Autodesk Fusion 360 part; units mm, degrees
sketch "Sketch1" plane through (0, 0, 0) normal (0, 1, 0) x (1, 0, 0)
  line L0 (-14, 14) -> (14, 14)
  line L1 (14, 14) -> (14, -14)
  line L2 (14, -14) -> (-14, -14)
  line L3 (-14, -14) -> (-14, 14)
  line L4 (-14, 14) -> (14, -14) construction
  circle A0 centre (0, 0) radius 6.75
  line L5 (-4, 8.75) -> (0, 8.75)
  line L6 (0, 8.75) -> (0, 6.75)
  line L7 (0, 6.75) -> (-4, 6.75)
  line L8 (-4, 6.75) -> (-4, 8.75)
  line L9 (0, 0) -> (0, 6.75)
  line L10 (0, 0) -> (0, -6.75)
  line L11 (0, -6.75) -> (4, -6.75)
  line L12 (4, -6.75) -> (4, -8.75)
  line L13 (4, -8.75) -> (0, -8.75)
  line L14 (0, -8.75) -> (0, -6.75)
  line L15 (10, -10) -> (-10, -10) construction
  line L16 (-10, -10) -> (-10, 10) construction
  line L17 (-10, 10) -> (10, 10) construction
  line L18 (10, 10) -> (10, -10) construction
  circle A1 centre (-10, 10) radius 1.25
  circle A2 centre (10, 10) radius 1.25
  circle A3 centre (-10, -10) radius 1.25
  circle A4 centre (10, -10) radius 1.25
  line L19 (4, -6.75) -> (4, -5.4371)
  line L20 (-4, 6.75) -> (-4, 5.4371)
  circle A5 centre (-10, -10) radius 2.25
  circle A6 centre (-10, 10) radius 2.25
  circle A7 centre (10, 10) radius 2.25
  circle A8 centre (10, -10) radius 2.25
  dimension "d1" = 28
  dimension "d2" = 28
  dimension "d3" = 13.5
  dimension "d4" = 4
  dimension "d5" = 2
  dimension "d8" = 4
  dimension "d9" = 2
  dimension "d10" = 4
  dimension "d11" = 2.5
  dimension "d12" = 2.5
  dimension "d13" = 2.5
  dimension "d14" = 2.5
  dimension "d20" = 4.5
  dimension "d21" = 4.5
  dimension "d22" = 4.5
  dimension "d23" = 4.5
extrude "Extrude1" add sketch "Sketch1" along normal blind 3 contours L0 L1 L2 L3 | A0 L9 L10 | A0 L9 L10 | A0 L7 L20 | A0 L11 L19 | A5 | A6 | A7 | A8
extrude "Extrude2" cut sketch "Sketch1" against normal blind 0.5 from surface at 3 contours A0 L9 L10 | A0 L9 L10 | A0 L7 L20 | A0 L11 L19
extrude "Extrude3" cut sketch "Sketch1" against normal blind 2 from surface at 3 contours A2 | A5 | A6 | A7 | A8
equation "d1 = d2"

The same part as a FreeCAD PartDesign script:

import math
import FreeCAD as App
import Part
import Sketcher
from FreeCAD import Vector
Q = App.Units.Quantity


def add_polygon(sketch, points):
    """Adds a closed chain of lines whose ends are joined by coincident constraints."""
    first, n = sketch.GeometryCount, len(points)
    for a, b in zip(points, points[1:] + points[:1]):
        sketch.addGeometry(Part.LineSegment(App.Vector(*a, 0), App.Vector(*b, 0)), False)
    for i in range(n):
        sketch.addConstraint(Sketcher.Constraint("Coincident", first + i, 2, first + (i + 1) % n, 1))

doc = App.newDocument("Part")
params = doc.addObject("Spreadsheet::Sheet", "Params")
for row, (alias, value) in enumerate([
    ("sketch1_diameter", "2.5 mm"),
    ("sketch1_width", "28 mm"),
    ("sketch1_width2", "4 mm"),
    ("sketch1_height", "2 mm"),
    ("pad1_length", "3 mm"),
    ("sketch2_width", "4 mm"),
    ("sketch2_radius", "6.75 mm"),
    ("pocket1_length", "0.5 mm"),
    ("sketch3_diameter", "4.5 mm"),
    ("sketch3_diameter2", "2.5 mm"),
    ("pocket2_length", "2 mm"),
], start=1):
    params.set(f"A{row}", alias)
    params.set(f"B{row}", "=" + value)
    params.setAlias(f"B{row}", alias)

body = doc.addObject("PartDesign::Body", "Body")

# Sketch on XZ plane
sketch1 = body.newObject("Sketcher::SketchObject", "Sketch")
sketch1.AttachmentSupport = (doc.getObject("XZ_Plane"), [""])
sketch1.MapMode = "FlatFace"
add_polygon(sketch1, [(14, -14), (-14, -14), (-14, 14), (14, 14)])  # lines 0-3
add_polygon(sketch1, [(0, -8.75), (0, -6.75), (-4, -6.75), (-4, -8.75)])  # lines 4-7
add_polygon(sketch1, [(0, 8.75), (0, 6.75), (4, 6.75), (4, 8.75)])  # lines 8-11
sketch1.addGeometry(Part.Circle(Vector(-10, 10, 0), Vector(0, 0, 1), 1.25), False)  # 12
sketch1.addGeometry(Part.Circle(Vector(10, 10, 0), Vector(0, 0, 1), 1.25), False)  # 13
sketch1.addGeometry(Part.Circle(Vector(-10, -10, 0), Vector(0, 0, 1), 1.25), False)  # 14
sketch1.addGeometry(Part.Circle(Vector(10, -10, 0), Vector(0, 0, 1), 1.25), False)  # 15
sketch1.addConstraint(Sketcher.Constraint("Horizontal", 0))
sketch1.addConstraint(Sketcher.Constraint("Vertical", 1))
sketch1.addConstraint(Sketcher.Constraint("Horizontal", 2))
sketch1.addConstraint(Sketcher.Constraint("Vertical", 3))
sketch1.addConstraint(Sketcher.Constraint("Vertical", 4))
sketch1.addConstraint(Sketcher.Constraint("Horizontal", 5))
sketch1.addConstraint(Sketcher.Constraint("Vertical", 6))
sketch1.addConstraint(Sketcher.Constraint("Horizontal", 7))
sketch1.addConstraint(Sketcher.Constraint("Vertical", 8))
sketch1.addConstraint(Sketcher.Constraint("Horizontal", 9))
sketch1.addConstraint(Sketcher.Constraint("Vertical", 10))
sketch1.addConstraint(Sketcher.Constraint("Horizontal", 11))
sketch1.addConstraint(Sketcher.Constraint("Equal", 12, 13))
sketch1.addConstraint(Sketcher.Constraint("Equal", 13, 14))
sketch1.addConstraint(Sketcher.Constraint("Equal", 14, 15))
sketch1.addConstraint(Sketcher.Constraint("Symmetric", 13, 3, 14, 3, -1, 1))
sketch1.addConstraint(Sketcher.Constraint("Symmetric", 12, 3, 15, 3, -1, 1))
sketch1.addConstraint(Sketcher.Constraint("Symmetric", 0, 2, 2, 2, -1, 1))
sketch1.addConstraint(Sketcher.Constraint("Symmetric", 4, 2, 8, 2, -1, 1))
sketch1.addConstraint(Sketcher.Constraint("Symmetric", 6, 2, 10, 2, -1, 1))
sketch1.addConstraint(Sketcher.Constraint("Symmetric", 12, 3, 13, 3, -2))
sketch1.addConstraint(Sketcher.Constraint("PointOnObject", 4, 2, -2))
sketch1.addConstraint(Sketcher.Constraint("Equal", 2, 1))
sketch1.addConstraint(Sketcher.Constraint("Diameter", 12, Q("2.5 mm")))
sketch1.addConstraint(Sketcher.Constraint("DistanceX", 0, 2, 0, 1, Q("28 mm")))
sketch1.addConstraint(Sketcher.Constraint("DistanceX", 5, 2, 5, 1, Q("4 mm")))
sketch1.addConstraint(Sketcher.Constraint("DistanceY", 4, 1, 4, 2, Q("2 mm")))
sketch1.addConstraint(Sketcher.Constraint("DistanceX", 0, 2, 14, 3, Q("4 mm")))
sketch1.addConstraint(Sketcher.Constraint("DistanceY", 0, 2, 14, 3, Q("4 mm")))
sketch1.addConstraint(Sketcher.Constraint("DistanceY", 4, 2, 8, 2, Q("13.5 mm")))
sketch1.setExpression("Constraints[35]", "Params.sketch1_diameter")
sketch1.setExpression("Constraints[36]", "Params.sketch1_width")
sketch1.setExpression("Constraints[37]", "Params.sketch1_width2")
sketch1.setExpression("Constraints[38]", "Params.sketch1_height")
pad1 = body.newObject("PartDesign::Pad", "Pad")
pad1.Profile = sketch1
pad1.setExpression("Length", "Params.pad1_length")
pad1.Reversed = True

# Sketch on XZ plane
sketch2 = body.newObject("Sketcher::SketchObject", "Sketch001")
sketch2.AttachmentSupport = (doc.getObject("XZ_Plane"), [""])
sketch2.MapMode = "FlatFace"
sketch2.AttachmentOffset = App.Placement(Vector(0, 0, -3), App.Rotation())
sketch2.addGeometry(Part.ArcOfCircle(Part.Circle(Vector(0, 0, 0), Vector(0, 0, 1), 6.75), math.radians(-90), math.radians(53.658592)), False)
sketch2.addGeometry(Part.LineSegment(Vector(0, -6.75, 0), Vector(-4, -6.75, 0)), False)
sketch2.addGeometry(Part.LineSegment(Vector(-4, -6.75, 0), Vector(-4, -5.4371, 0)), False)
sketch2.addGeometry(Part.ArcOfCircle(Part.Circle(Vector(0, 0, 0), Vector(0, 0, 1), 6.75), math.radians(90), math.radians(233.658592)), False)
sketch2.addGeometry(Part.LineSegment(Vector(0, 6.75, 0), Vector(4, 6.75, 0)), False)
sketch2.addGeometry(Part.LineSegment(Vector(4, 6.75, 0), Vector(4, 5.4371, 0)), False)
sketch2.addConstraint(Sketcher.Constraint("Tangent", 0, 1, 1, 1))
sketch2.addConstraint(Sketcher.Constraint("Coincident", 1, 2, 2, 1))
sketch2.addConstraint(Sketcher.Constraint("Coincident", 2, 2, 3, 2))
sketch2.addConstraint(Sketcher.Constraint("Tangent", 3, 1, 4, 1))
sketch2.addConstraint(Sketcher.Constraint("Coincident", 4, 2, 5, 1))
sketch2.addConstraint(Sketcher.Constraint("Coincident", 5, 2, 0, 2))
sketch2.addConstraint(Sketcher.Constraint("Horizontal", 1))
sketch2.addConstraint(Sketcher.Constraint("Vertical", 2))
sketch2.addConstraint(Sketcher.Constraint("Horizontal", 4))
sketch2.addConstraint(Sketcher.Constraint("Vertical", 5))
sketch2.addConstraint(Sketcher.Constraint("Coincident", 0, 3, -1, 1))
sketch2.addConstraint(Sketcher.Constraint("Coincident", 3, 3, -1, 1))
sketch2.addConstraint(Sketcher.Constraint("Equal", 0, 3))
sketch2.addConstraint(Sketcher.Constraint("Equal", 1, 4))
sketch2.addConstraint(Sketcher.Constraint("DistanceX", 1, 2, 1, 1, Q("4 mm")))
sketch2.addConstraint(Sketcher.Constraint("Radius", 0, Q("6.75 mm")))
sketch2.setExpression("Constraints[14]", "Params.sketch2_width")
sketch2.setExpression("Constraints[15]", "Params.sketch2_radius")
pocket1 = body.newObject("PartDesign::Pocket", "Pocket")
pocket1.Profile = sketch2
pocket1.setExpression("Length", "Params.pocket1_length")
pocket1.Reversed = True

# Sketch on XZ plane
sketch3 = body.newObject("Sketcher::SketchObject", "Sketch002")
sketch3.AttachmentSupport = (doc.getObject("XZ_Plane"), [""])
sketch3.MapMode = "FlatFace"
sketch3.AttachmentOffset = App.Placement(Vector(0, 0, -3), App.Rotation())
sketch3.addGeometry(Part.Circle(Vector(10, -10, 0), Vector(0, 0, 1), 2.25), False)
sketch3.addGeometry(Part.Circle(Vector(-10, 10, 0), Vector(0, 0, 1), 2.25), False)
sketch3.addGeometry(Part.Circle(Vector(-10, 10, 0), Vector(0, 0, 1), 1.25), False)
sketch3.addGeometry(Part.Circle(Vector(-10, -10, 0), Vector(0, 0, 1), 2.25), False)
sketch3.addGeometry(Part.Circle(Vector(-10, -10, 0), Vector(0, 0, 1), 1.25), False)
sketch3.addGeometry(Part.Circle(Vector(10, 10, 0), Vector(0, 0, 1), 2.25), False)
sketch3.addGeometry(Part.Circle(Vector(10, 10, 0), Vector(0, 0, 1), 1.25), False)
sketch3.addConstraint(Sketcher.Constraint("Coincident", 2, 3, 1, 3))
sketch3.addConstraint(Sketcher.Constraint("Coincident", 4, 3, 3, 3))
sketch3.addConstraint(Sketcher.Constraint("Coincident", 6, 3, 5, 3))
sketch3.addConstraint(Sketcher.Constraint("Equal", 0, 1))
sketch3.addConstraint(Sketcher.Constraint("Equal", 1, 3))
sketch3.addConstraint(Sketcher.Constraint("Equal", 2, 4))
sketch3.addConstraint(Sketcher.Constraint("Equal", 3, 5))
sketch3.addConstraint(Sketcher.Constraint("Equal", 4, 6))
sketch3.addConstraint(Sketcher.Constraint("Symmetric", 0, 3, 1, 3, -1, 1))
sketch3.addConstraint(Sketcher.Constraint("Symmetric", 3, 3, 5, 3, -1, 1))
sketch3.addConstraint(Sketcher.Constraint("Symmetric", 0, 3, 3, 3, -2))
sketch3.addConstraint(Sketcher.Constraint("Diameter", 0, Q("4.5 mm")))
sketch3.addConstraint(Sketcher.Constraint("Diameter", 2, Q("2.5 mm")))
sketch3.addConstraint(Sketcher.Constraint("DistanceX", -1, 1, 0, 3, Q("10 mm")))
sketch3.addConstraint(Sketcher.Constraint("DistanceY", 0, 3, -1, 1, Q("10 mm")))
sketch3.setExpression("Constraints[11]", "Params.sketch3_diameter")
sketch3.setExpression("Constraints[12]", "Params.sketch3_diameter2")
pocket2 = body.newObject("PartDesign::Pocket", "Pocket001")
pocket2.Profile = sketch3
pocket2.setExpression("Length", "Params.pocket2_length")
pocket2.Reversed = True

doc.recompute()
